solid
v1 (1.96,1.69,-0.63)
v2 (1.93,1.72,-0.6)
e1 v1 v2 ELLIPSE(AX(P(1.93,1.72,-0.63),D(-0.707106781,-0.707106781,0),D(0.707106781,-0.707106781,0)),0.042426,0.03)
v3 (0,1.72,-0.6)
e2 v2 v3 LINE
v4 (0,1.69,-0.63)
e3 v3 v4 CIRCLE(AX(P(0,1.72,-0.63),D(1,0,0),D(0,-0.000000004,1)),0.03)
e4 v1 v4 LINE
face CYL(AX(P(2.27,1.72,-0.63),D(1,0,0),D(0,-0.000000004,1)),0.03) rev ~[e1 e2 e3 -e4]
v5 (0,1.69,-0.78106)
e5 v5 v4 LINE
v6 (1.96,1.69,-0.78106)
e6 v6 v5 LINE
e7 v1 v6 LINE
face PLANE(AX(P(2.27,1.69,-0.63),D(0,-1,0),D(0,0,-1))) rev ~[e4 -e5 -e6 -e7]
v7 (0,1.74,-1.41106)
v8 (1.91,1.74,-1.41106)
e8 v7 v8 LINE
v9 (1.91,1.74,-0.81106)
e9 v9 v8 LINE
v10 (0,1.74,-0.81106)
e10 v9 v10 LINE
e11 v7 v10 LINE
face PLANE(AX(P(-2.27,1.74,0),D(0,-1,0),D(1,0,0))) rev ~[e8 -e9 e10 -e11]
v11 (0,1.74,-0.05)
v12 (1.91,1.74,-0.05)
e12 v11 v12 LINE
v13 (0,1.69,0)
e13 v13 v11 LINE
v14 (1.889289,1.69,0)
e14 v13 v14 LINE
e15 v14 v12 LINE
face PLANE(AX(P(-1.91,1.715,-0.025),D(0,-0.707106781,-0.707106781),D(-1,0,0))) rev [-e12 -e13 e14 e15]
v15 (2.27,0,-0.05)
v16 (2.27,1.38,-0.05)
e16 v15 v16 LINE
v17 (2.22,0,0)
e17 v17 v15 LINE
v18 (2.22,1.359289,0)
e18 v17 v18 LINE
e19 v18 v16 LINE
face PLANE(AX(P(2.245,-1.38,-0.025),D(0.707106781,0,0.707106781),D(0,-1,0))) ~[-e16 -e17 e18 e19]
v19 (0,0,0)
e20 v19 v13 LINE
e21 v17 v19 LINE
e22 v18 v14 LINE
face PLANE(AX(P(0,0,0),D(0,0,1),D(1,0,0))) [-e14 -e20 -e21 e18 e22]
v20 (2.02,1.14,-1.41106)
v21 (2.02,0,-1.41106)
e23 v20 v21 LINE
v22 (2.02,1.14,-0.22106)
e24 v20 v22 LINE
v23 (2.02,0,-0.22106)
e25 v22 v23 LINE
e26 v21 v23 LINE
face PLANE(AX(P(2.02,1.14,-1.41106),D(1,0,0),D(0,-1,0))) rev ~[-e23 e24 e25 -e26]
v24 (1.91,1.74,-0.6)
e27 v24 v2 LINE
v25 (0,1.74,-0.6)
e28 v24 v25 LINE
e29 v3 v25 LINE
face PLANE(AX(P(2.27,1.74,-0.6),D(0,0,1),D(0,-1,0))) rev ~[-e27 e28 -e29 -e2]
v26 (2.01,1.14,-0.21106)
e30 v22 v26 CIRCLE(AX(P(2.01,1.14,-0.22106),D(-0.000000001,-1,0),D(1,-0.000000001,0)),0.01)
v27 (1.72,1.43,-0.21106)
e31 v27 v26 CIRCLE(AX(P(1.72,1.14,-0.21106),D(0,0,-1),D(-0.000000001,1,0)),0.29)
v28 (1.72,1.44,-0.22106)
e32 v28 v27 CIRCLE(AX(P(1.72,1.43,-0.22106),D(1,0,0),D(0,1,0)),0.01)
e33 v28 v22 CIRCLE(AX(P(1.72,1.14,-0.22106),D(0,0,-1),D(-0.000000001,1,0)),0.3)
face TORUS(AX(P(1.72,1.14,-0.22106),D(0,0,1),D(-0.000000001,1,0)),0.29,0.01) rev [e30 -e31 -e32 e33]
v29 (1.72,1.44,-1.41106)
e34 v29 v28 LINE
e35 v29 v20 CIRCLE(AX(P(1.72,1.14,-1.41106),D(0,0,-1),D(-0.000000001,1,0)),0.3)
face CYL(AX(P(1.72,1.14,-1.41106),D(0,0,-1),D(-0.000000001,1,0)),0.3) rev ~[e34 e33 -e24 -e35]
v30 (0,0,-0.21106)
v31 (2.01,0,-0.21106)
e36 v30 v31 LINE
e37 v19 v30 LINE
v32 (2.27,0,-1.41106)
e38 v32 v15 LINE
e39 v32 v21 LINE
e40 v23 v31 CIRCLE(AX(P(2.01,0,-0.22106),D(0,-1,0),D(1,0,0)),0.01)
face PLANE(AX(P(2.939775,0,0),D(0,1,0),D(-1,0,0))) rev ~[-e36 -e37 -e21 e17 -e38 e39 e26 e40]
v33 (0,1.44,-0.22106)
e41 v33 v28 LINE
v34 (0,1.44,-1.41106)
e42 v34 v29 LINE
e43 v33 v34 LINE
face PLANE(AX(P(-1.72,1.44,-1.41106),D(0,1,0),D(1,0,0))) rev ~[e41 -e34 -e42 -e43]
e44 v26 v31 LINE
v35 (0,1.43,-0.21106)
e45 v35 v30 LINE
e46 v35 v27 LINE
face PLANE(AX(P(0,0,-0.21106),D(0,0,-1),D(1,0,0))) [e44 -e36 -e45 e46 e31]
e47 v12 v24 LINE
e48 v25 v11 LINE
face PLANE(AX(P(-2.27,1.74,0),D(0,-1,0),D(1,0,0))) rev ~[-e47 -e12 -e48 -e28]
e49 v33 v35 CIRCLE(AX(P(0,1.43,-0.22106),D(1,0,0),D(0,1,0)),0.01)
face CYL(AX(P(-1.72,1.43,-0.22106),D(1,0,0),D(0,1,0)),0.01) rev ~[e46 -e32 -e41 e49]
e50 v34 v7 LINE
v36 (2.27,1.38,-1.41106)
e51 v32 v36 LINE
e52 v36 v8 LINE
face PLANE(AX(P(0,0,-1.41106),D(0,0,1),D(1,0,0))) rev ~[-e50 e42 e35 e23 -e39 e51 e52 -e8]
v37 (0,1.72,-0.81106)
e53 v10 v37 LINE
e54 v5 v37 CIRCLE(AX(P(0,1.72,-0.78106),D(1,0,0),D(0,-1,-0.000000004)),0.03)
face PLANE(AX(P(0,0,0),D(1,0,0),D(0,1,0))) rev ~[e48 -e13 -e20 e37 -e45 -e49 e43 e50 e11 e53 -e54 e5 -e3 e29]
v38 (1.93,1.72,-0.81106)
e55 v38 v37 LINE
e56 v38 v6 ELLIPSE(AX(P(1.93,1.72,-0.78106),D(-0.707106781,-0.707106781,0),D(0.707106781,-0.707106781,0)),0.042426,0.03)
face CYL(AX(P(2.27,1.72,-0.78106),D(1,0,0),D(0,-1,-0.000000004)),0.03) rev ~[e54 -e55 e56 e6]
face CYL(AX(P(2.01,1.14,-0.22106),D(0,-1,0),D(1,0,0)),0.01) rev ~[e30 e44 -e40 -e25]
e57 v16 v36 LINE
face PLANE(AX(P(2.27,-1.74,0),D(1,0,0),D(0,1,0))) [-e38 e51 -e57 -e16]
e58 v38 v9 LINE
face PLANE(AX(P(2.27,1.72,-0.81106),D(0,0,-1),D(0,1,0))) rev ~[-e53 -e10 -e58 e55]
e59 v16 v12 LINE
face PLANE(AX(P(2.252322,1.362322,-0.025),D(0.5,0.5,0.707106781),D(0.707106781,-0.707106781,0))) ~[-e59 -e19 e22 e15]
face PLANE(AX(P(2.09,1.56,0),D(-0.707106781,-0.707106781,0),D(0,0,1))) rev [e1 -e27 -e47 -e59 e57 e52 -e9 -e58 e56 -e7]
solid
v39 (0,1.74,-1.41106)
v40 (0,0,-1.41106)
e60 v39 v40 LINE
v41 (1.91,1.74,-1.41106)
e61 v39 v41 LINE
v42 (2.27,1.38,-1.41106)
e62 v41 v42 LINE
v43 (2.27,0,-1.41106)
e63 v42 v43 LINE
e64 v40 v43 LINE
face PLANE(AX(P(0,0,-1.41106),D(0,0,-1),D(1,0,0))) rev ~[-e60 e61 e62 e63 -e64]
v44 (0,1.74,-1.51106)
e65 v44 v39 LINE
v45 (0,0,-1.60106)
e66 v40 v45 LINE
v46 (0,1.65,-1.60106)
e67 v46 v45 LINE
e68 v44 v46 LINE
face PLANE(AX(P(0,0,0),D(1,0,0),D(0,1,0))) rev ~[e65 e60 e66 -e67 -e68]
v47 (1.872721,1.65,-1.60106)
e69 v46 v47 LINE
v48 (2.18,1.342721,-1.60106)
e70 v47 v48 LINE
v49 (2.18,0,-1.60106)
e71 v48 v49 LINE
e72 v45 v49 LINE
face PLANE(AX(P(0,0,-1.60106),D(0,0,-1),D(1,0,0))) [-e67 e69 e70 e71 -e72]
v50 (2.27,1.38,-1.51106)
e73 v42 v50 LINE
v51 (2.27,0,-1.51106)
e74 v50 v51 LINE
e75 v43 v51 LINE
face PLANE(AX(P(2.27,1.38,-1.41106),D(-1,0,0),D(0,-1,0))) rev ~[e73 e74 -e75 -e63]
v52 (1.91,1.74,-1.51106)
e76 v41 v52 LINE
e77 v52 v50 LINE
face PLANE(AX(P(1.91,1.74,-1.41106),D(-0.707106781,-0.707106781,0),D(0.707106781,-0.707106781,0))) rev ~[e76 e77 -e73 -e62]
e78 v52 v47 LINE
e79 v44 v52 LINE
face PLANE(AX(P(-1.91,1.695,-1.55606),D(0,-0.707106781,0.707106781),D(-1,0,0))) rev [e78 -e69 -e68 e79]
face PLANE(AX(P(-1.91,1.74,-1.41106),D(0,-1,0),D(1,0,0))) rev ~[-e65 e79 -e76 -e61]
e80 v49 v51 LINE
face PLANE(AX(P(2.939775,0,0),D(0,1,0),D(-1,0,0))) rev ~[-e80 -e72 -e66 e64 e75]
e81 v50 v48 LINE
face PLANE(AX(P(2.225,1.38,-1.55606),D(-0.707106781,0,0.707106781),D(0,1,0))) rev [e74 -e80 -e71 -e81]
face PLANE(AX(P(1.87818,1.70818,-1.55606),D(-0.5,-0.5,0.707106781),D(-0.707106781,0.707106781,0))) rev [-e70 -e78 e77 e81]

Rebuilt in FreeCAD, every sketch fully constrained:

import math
import FreeCAD as App
import Part
import Sketcher

V = App.Vector
Q = App.Units.Quantity


def edges_at(feature, points):
    """Names of the edges that pass closest to the given points."""
    edges = feature.Shape.Edges
    near = lambda p: min(range(len(edges)), key=lambda i: edges[i].distToShape(Part.Vertex(*p))[0])
    return sorted({f"Edge{near(p) + 1}" for p in points})

doc = App.newDocument("Part")
params = doc.addObject("Spreadsheet::Sheet", "Params")
for row, (alias, value) in enumerate([
    ("sketch1_width", "4.54 mm"),
    ("sketch1_height", "3.48 mm"),
    ("pad1_length", "1.41106 mm"),
    ("chamfer_size", "0.36 mm"),
    ("chamfer2_size", "0.05 mm"),
    ("chamfer2_size2", "0.05 mm"),
    ("sketch2_radius", "0.03 mm"),
    ("sketch2_width", "0.02 mm"),
    ("sketch3_radius", "0.3 mm"),
    ("sketch3_width", "3.44 mm"),
    ("sketch3_height", "2.28 mm"),
    ("pocket2_length", "1.2 mm"),
    ("fillet_radius", "0.01 mm"),
    ("sketch4_width", "3.82 mm"),
    ("sketch4_height", "2.76 mm"),
    ("pad2_length", "0.19 mm"),
    ("chamfer3_size", "0.09 mm"),
    ("pad3_length", "25 mm"),
], start=1):
    params.set(f"A{row}", alias)
    params.set(f"B{row}", "=" + value)
    params.setAlias(f"B{row}", alias)

body = doc.addObject("PartDesign::Body", "Body")

sketch1 = body.newObject("Sketcher::SketchObject", "Sketch")
sketch1.AttachmentSupport = (doc.getObject("XY_Plane"), [""])
sketch1.MapMode = "FlatFace"
sketch1.addGeometry([
    Part.LineSegment(V(-2.27, 1.74, 0), V(-2.27, -1.74, 0)),
    Part.LineSegment(V(-2.27, -1.74, 0), V(2.27, -1.74, 0)),
    Part.LineSegment(V(2.27, -1.74, 0), V(2.27, 1.74, 0)),
    Part.LineSegment(V(2.27, 1.74, 0), V(-2.27, 1.74, 0)),
], False)
sketch1.addConstraint([
    Sketcher.Constraint("Coincident", 0, 2, 1, 1),
    Sketcher.Constraint("Coincident", 1, 2, 2, 1),
    Sketcher.Constraint("Coincident", 2, 2, 3, 1),
    Sketcher.Constraint("Coincident", 3, 2, 0, 1),
    Sketcher.Constraint("Vertical", 0),
    Sketcher.Constraint("Horizontal", 1),
    Sketcher.Constraint("Vertical", 2),
    Sketcher.Constraint("Horizontal", 3),
    Sketcher.Constraint("Symmetric", 0, 2, 2, 2, -1, 1),
    Sketcher.Constraint("DistanceX", 1, 1, 1, 2, Q("4.54 mm")),
    Sketcher.Constraint("DistanceY", 0, 2, 0, 1, Q("3.48 mm")),
])
sketch1.setExpression("Constraints[9]", "Params.sketch1_width")
sketch1.setExpression("Constraints[10]", "Params.sketch1_height")
pad1 = body.newObject("PartDesign::Pad", "Pad")
pad1.Profile = sketch1
pad1.setExpression("Length", "Params.pad1_length")
pad1.Reversed = True
doc.recompute()

chamfer = body.newObject("PartDesign::Chamfer", "Chamfer")
chamfer.Base = (pad1, edges_at(pad1, [
    (-2.27, 1.74, -0.706),
    (-2.27, -1.74, -0.706),
    (2.27, 1.74, -0.706),
    (2.27, -1.74, -0.706),
]))
chamfer.setExpression("Size", "Params.chamfer_size")
doc.recompute()

chamfer2 = body.newObject("PartDesign::Chamfer", "Chamfer001")
chamfer2.Base = (chamfer, edges_at(chamfer, [
    (-2.27, 0, 0),
    (-2.09, 1.56, 0),
    (0, 1.74, 0),
    (2.09, 1.56, 0),
    (2.27, 0, 0),
    (2.09, -1.56, 0),
    (0, -1.74, 0),
    (-2.09, -1.56, 0),
]))
chamfer2.ChamferType = "Two distances"
chamfer2.setExpression("Size", "Params.chamfer2_size")
chamfer2.setExpression("Size2", "Params.chamfer2_size2")

sketch2 = body.newObject("Sketcher::SketchObject", "Sketch001")
sketch2.AttachmentSupport = (doc.getObject("YZ_Plane"), [""])
sketch2.MapMode = "FlatFace"
sketch2.AttachmentOffset = App.Placement(V(0, 0, 2.27), App.Rotation())
sketch2.addGeometry([
    Part.LineSegment(V(-1.72, -0.6, 0), V(-1.74, -0.6, 0)),
    Part.LineSegment(V(-1.74, -0.6, 0), V(-1.74, -0.81106, 0)),
    Part.LineSegment(V(-1.74, -0.81106, 0), V(-1.72, -0.81106, 0)),
    Part.ArcOfCircle(Part.Circle(V(-1.72, -0.78106, 0), V(0, 0, 1), 0.03), math.radians(-90), math.radians(0)),
    Part.LineSegment(V(-1.69, -0.78106, 0), V(-1.69, -0.63, 0)),
    Part.ArcOfCircle(Part.Circle(V(-1.72, -0.63, 0), V(0, 0, 1), 0.03), math.radians(0), math.radians(90)),
    Part.LineSegment(V(1.74, -0.81106, 0), V(1.74, -0.6, 0)),
    Part.LineSegment(V(1.74, -0.6, 0), V(1.72, -0.6, 0)),
    Part.ArcOfCircle(Part.Circle(V(1.72, -0.63, 0), V(0, 0, 1), 0.03), math.radians(90), math.radians(180)),
    Part.LineSegment(V(1.69, -0.63, 0), V(1.69, -0.78106, 0)),
    Part.ArcOfCircle(Part.Circle(V(1.72, -0.78106, 0), V(0, 0, 1), 0.03), math.radians(180), math.radians(270)),
    Part.LineSegment(V(1.72, -0.81106, 0), V(1.74, -0.81106, 0)),
], False)
sketch2.addConstraint([
    Sketcher.Constraint("Coincident", 0, 2, 1, 1),
    Sketcher.Constraint("Coincident", 1, 2, 2, 1),
    Sketcher.Constraint("Tangent", 2, 2, 3, 1),
    Sketcher.Constraint("Tangent", 3, 2, 4, 1),
    Sketcher.Constraint("Tangent", 4, 2, 5, 1),
    Sketcher.Constraint("Tangent", 5, 2, 0, 1),
    Sketcher.Constraint("Coincident", 6, 2, 7, 1),
    Sketcher.Constraint("Tangent", 7, 2, 8, 1),
    Sketcher.Constraint("Tangent", 8, 2, 9, 1),
    Sketcher.Constraint("Tangent", 9, 2, 10, 1),
    Sketcher.Constraint("Tangent", 10, 2, 11, 1),
    Sketcher.Constraint("Coincident", 11, 2, 6, 1),
    Sketcher.Constraint("Horizontal", 0),
    Sketcher.Constraint("Vertical", 1),
    Sketcher.Constraint("Horizontal", 2),
    Sketcher.Constraint("Vertical", 4),
    Sketcher.Constraint("Vertical", 6),
    Sketcher.Constraint("Horizontal", 7),
    Sketcher.Constraint("Vertical", 9),
    Sketcher.Constraint("Horizontal", 11),
    Sketcher.Constraint("Equal", 3, 5),
    Sketcher.Constraint("Equal", 5, 8),
    Sketcher.Constraint("Equal", 8, 10),
    Sketcher.Constraint("Symmetric", 5, 3, 8, 3, -2),
    Sketcher.Constraint("Symmetric", 1, 2, 11, 2, -2),
    Sketcher.Constraint("Radius", 3, Q("0.03 mm")),
    Sketcher.Constraint("DistanceX", 0, 2, 0, 1, Q("0.02 mm")),
    Sketcher.Constraint("DistanceY", 0, 2, -1, 1, Q("0.6 mm")),
    Sketcher.Constraint("DistanceX", 3, 3, -1, 1, Q("1.72 mm")),
    Sketcher.Constraint("DistanceY", 1, 2, 1, 1, Q("0.21106 mm")),
])
sketch2.setExpression("Constraints[25]", "Params.sketch2_radius")
sketch2.setExpression("Constraints[26]", "Params.sketch2_width")
pocket1 = body.newObject("PartDesign::Pocket", "Pocket")
pocket1.Profile = sketch2
pocket1.Type = "ThroughAll"

sketch3 = body.newObject("Sketcher::SketchObject", "Sketch002")
sketch3.AttachmentSupport = (doc.getObject("XY_Plane"), [""])
sketch3.MapMode = "FlatFace"
sketch3.AttachmentOffset = App.Placement(V(0, 0, -1.41106), App.Rotation())
sketch3.addGeometry([
    Part.LineSegment(V(1.72, -1.44, 0), V(-1.72, -1.44, 0)),
    Part.ArcOfCircle(Part.Circle(V(-1.72, -1.14, 0), V(0, 0, 1), 0.3), math.radians(180), math.radians(270)),
    Part.LineSegment(V(-2.02, -1.14, 0), V(-2.02, 1.14, 0)),
    Part.ArcOfCircle(Part.Circle(V(-1.72, 1.14, 0), V(0, 0, 1), 0.3), math.radians(90), math.radians(180)),
    Part.LineSegment(V(-1.72, 1.44, 0), V(1.72, 1.44, 0)),
    Part.ArcOfCircle(Part.Circle(V(1.72, 1.14, 0), V(0, 0, 1), 0.3), math.radians(0), math.radians(90)),
    Part.LineSegment(V(2.02, 1.14, 0), V(2.02, -1.14, 0)),
    Part.ArcOfCircle(Part.Circle(V(1.72, -1.14, 0), V(0, 0, 1), 0.3), math.radians(-90), math.radians(0)),
], False)
sketch3.addConstraint([
    Sketcher.Constraint("Tangent", 0, 2, 1, 2),
    Sketcher.Constraint("Tangent", 1, 1, 2, 1),
    Sketcher.Constraint("Tangent", 2, 2, 3, 2),
    Sketcher.Constraint("Tangent", 3, 1, 4, 1),
    Sketcher.Constraint("Tangent", 4, 2, 5, 2),
    Sketcher.Constraint("Tangent", 5, 1, 6, 1),
    Sketcher.Constraint("Tangent", 6, 2, 7, 2),
    Sketcher.Constraint("Tangent", 7, 1, 0, 1),
    Sketcher.Constraint("Horizontal", 0),
    Sketcher.Constraint("Vertical", 2),
    Sketcher.Constraint("Horizontal", 4),
    Sketcher.Constraint("Vertical", 6),
    Sketcher.Constraint("Equal", 1, 3),
    Sketcher.Constraint("Equal", 3, 5),
    Sketcher.Constraint("Equal", 5, 7),
    Sketcher.Constraint("Symmetric", 1, 3, 5, 3, -1, 1),
    Sketcher.Constraint("Radius", 1, Q("0.3 mm")),
    Sketcher.Constraint("DistanceX", 0, 2, 0, 1, Q("3.44 mm")),
    Sketcher.Constraint("DistanceY", 2, 1, 2, 2, Q("2.28 mm")),
])
sketch3.setExpression("Constraints[16]", "Params.sketch3_radius")
sketch3.setExpression("Constraints[17]", "Params.sketch3_width")
sketch3.setExpression("Constraints[18]", "Params.sketch3_height")
pocket2 = body.newObject("PartDesign::Pocket", "Pocket001")
pocket2.Profile = sketch3
pocket2.setExpression("Length", "Params.pocket2_length")
pocket2.Reversed = True
doc.recompute()

fillet = body.newObject("PartDesign::Fillet", "Fillet")
fillet.Base = (pocket2, edges_at(pocket2, [
    (0, 1.44, -0.211),
    (1.932, 1.352, -0.211),
    (2.02, 0, -0.211),
    (-1.932, 1.352, -0.211),
    (1.932, -1.352, -0.211),
    (0, -1.44, -0.211),
    (-1.932, -1.352, -0.211),
    (-2.02, 0, -0.211),
]))
fillet.setExpression("Radius", "Params.fillet_radius")
body2 = doc.addObject("PartDesign::Body", "Body001")

sketch4 = body2.newObject("Sketcher::SketchObject", "Sketch003")
sketch4.AttachmentSupport = (doc.getObject("XY_Plane001"), [""])
sketch4.MapMode = "FlatFace"
sketch4.AttachmentOffset = App.Placement(V(0, 0, -1.41106), App.Rotation())
sketch4.addGeometry([
    Part.LineSegment(V(1.91, -1.74, 0), V(-1.91, -1.74, 0)),
    Part.LineSegment(V(-1.91, -1.74, 0), V(-2.27, -1.38, 0)),
    Part.LineSegment(V(-2.27, -1.38, 0), V(-2.27, 1.38, 0)),
    Part.LineSegment(V(-2.27, 1.38, 0), V(-1.91, 1.74, 0)),
    Part.LineSegment(V(-1.91, 1.74, 0), V(1.91, 1.74, 0)),
    Part.LineSegment(V(1.91, 1.74, 0), V(2.27, 1.38, 0)),
    Part.LineSegment(V(2.27, 1.38, 0), V(2.27, -1.38, 0)),
    Part.LineSegment(V(2.27, -1.38, 0), V(1.91, -1.74, 0)),
], False)
sketch4.addConstraint([
    Sketcher.Constraint("Coincident", 0, 2, 1, 1),
    Sketcher.Constraint("Coincident", 1, 2, 2, 1),
    Sketcher.Constraint("Coincident", 2, 2, 3, 1),
    Sketcher.Constraint("Coincident", 3, 2, 4, 1),
    Sketcher.Constraint("Coincident", 4, 2, 5, 1),
    Sketcher.Constraint("Coincident", 5, 2, 6, 1),
    Sketcher.Constraint("Coincident", 6, 2, 7, 1),
    Sketcher.Constraint("Coincident", 7, 2, 0, 1),
    Sketcher.Constraint("Horizontal", 0),
    Sketcher.Constraint("Vertical", 2),
    Sketcher.Constraint("Horizontal", 4),
    Sketcher.Constraint("Vertical", 6),
    Sketcher.Constraint("Symmetric", 0, 2, 4, 2, -1, 1),
    Sketcher.Constraint("Symmetric", 1, 2, 5, 2, -1, 1),
    Sketcher.Constraint("Perpendicular", 1, 3),
    Sketcher.Constraint("Perpendicular", 5, 7),
    Sketcher.Constraint("Horizontal", 2, 2, 5, 2),
    Sketcher.Constraint("Horizontal", 1, 2, 6, 2),
    Sketcher.Constraint("Vertical", 0, 2, 3, 2),
    Sketcher.Constraint("DistanceX", 0, 2, 0, 1, Q("3.82 mm")),
    Sketcher.Constraint("DistanceY", 2, 1, 2, 2, Q("2.76 mm")),
    Sketcher.Constraint("DistanceY", 0, 2, -1, 1, Q("1.74 mm")),
])
sketch4.setExpression("Constraints[19]", "Params.sketch4_width")
sketch4.setExpression("Constraints[20]", "Params.sketch4_height")
pad2 = body2.newObject("PartDesign::Pad", "Pad001")
pad2.Profile = sketch4
pad2.setExpression("Length", "Params.pad2_length")
pad2.Reversed = True
doc.recompute()

chamfer3 = body2.newObject("PartDesign::Chamfer", "Chamfer002")
chamfer3.Base = (pad2, edges_at(pad2, [
    (-2.27, 0, -1.601),
    (-2.09, -1.56, -1.601),
    (0, -1.74, -1.601),
    (2.09, -1.56, -1.601),
    (2.27, 0, -1.601),
    (2.09, 1.56, -1.601),
    (0, 1.74, -1.601),
    (-2.09, 1.56, -1.601),
]))
chamfer3.setExpression("Size", "Params.chamfer3_size")
body3 = doc.addObject("PartDesign::Body", "Body002")

sketch5 = body3.newObject("Sketcher::SketchObject", "Sketch004")
sketch5.AttachmentSupport = (doc.getObject("XY_Plane002"), [""])
sketch5.MapMode = "FlatFace"
sketch5.addGeometry([
    Part.LineSegment(V(2.939775, 0, 0), V(0, 0, 0)),
    Part.LineSegment(V(0, 0, 0), V(0, 1.830286, 0)),
    Part.LineSegment(V(0, 1.830286, 0), V(-2.390328, 1.830286, 0)),
    Part.LineSegment(V(-2.390328, 1.830286, 0), V(-2.390328, -2.338873, 0)),
    Part.LineSegment(V(-2.390328, -2.338873, 0), V(2.939775, -2.338873, 0)),
    Part.LineSegment(V(2.939775, -2.338873, 0), V(2.939775, 0, 0)),
], False)
sketch5.addConstraint([
    Sketcher.Constraint("Coincident", 0, 2, 1, 1),
    Sketcher.Constraint("Coincident", 1, 2, 2, 1),
    Sketcher.Constraint("Coincident", 2, 2, 3, 1),
    Sketcher.Constraint("Coincident", 3, 2, 4, 1),
    Sketcher.Constraint("Coincident", 4, 2, 5, 1),
    Sketcher.Constraint("Coincident", 5, 2, 0, 1),
    Sketcher.Constraint("Horizontal", 0),
    Sketcher.Constraint("Vertical", 1),
    Sketcher.Constraint("Horizontal", 2),
    Sketcher.Constraint("Vertical", 3),
    Sketcher.Constraint("Horizontal", 4),
    Sketcher.Constraint("Vertical", 5),
    Sketcher.Constraint("Coincident", 0, 2, -1, 1),
    Sketcher.Constraint("DistanceX", 2, 2, 2, 1, Q("2.390328 mm")),
    Sketcher.Constraint("DistanceY", 3, 2, 3, 1, Q("4.169159 mm")),
    Sketcher.Constraint("DistanceX", 0, 2, 0, 1, Q("2.939775 mm")),
    Sketcher.Constraint("DistanceY", 1, 1, 1, 2, Q("1.830286 mm")),
])
pad3 = body3.newObject("PartDesign::Pad", "Pad002")
pad3.Profile = sketch5
pad3.setExpression("Length", "Params.pad3_length")
pad3.Reversed = True
doc.recompute()

body4 = doc.addObject("PartDesign::Body", "Body003")
body4.BaseFeature = body3
boolean = body.newObject("PartDesign::Boolean", "Boolean")
boolean.Type = "Cut"
boolean.addObjects([body4])
doc.recompute()

boolean2 = body2.newObject("PartDesign::Boolean", "Boolean001")
boolean2.Type = "Cut"
boolean2.addObjects([body3])

doc.recompute()
